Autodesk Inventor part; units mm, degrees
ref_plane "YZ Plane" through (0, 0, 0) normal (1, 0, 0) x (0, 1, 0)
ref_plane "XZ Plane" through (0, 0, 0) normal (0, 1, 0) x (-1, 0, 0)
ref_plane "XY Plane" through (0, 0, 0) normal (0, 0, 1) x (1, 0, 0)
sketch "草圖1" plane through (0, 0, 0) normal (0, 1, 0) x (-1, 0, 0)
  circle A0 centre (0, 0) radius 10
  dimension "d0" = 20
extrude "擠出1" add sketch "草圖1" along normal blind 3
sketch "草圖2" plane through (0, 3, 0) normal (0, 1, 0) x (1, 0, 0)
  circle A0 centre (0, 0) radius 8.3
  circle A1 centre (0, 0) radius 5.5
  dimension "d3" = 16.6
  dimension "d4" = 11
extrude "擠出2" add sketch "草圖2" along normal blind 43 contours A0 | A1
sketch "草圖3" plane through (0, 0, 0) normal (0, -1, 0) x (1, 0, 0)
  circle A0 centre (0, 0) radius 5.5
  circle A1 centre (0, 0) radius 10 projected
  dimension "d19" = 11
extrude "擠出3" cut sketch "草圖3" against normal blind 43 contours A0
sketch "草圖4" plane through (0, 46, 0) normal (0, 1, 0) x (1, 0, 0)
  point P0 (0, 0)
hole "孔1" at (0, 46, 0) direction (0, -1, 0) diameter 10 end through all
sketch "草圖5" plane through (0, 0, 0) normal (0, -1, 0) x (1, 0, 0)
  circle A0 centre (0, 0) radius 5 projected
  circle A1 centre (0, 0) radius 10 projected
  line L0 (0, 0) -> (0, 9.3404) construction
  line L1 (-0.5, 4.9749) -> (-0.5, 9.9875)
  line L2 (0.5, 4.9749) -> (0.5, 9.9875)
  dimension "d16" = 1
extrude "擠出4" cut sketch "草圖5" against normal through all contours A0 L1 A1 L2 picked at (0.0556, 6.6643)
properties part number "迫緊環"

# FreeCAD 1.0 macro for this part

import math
import FreeCAD as App
import Part
import Sketcher
from FreeCAD import Vector
Q = App.Units.Quantity

doc = App.newDocument("Part")
body = doc.addObject("PartDesign::Body", "Body")

# Sketch on XZ plane
sketch1 = body.newObject("Sketcher::SketchObject", "Sketch")
sketch1.AttachmentSupport = (doc.getObject("XZ_Plane"), [""])
sketch1.MapMode = "FlatFace"
sketch1.addGeometry(Part.Circle(Vector(0, 0, 0), Vector(0, 0, 1), 10), False)
sketch1.addConstraint(Sketcher.Constraint("Coincident", 0, 3, -1, 1))
sketch1.addConstraint(Sketcher.Constraint("Diameter", 0, Q("20 mm")))
pad1 = body.newObject("PartDesign::Pad", "Pad")
pad1.Profile = sketch1
pad1.Length = 3
pad1.Reversed = True

# Sketch on XZ plane
sketch2 = body.newObject("Sketcher::SketchObject", "Sketch001")
sketch2.AttachmentSupport = (doc.getObject("XZ_Plane"), [""])
sketch2.MapMode = "FlatFace"
sketch2.AttachmentOffset = App.Placement(Vector(0, 0, -3), App.Rotation())
sketch2.addGeometry(Part.Circle(Vector(0, 0, 0), Vector(0, 0, 1), 8.3), False)
sketch2.addConstraint(Sketcher.Constraint("Coincident", 0, 3, -1, 1))
sketch2.addConstraint(Sketcher.Constraint("Diameter", 0, Q("16.6 mm")))
pad2 = body.newObject("PartDesign::Pad", "Pad001")
pad2.Profile = sketch2
pad2.Length = 43
pad2.Reversed = True

# Sketch on XZ plane
sketch3 = body.newObject("Sketcher::SketchObject", "Sketch002")
sketch3.AttachmentSupport = (doc.getObject("XZ_Plane"), [""])
sketch3.MapMode = "FlatFace"
sketch3.addGeometry(Part.Circle(Vector(0, 0, 0), Vector(0, 0, 1), 5.5), False)
sketch3.addConstraint(Sketcher.Constraint("Coincident", 0, 3, -1, 1))
sketch3.addConstraint(Sketcher.Constraint("Diameter", 0, Q("11 mm")))
pocket1 = body.newObject("PartDesign::Pocket", "Pocket")
pocket1.Profile = sketch3
pocket1.Length = 43

# Sketch on XZ plane
sketch4 = body.newObject("Sketcher::SketchObject", "Sketch003")
sketch4.AttachmentSupport = (doc.getObject("XZ_Plane"), [""])
sketch4.MapMode = "FlatFace"
sketch4.AttachmentOffset = App.Placement(Vector(0, 0, -46), App.Rotation())
sketch4.addGeometry(Part.Circle(Vector(0, 0, 0), Vector(0, 0, 1), 5), False)
sketch4.addConstraint(Sketcher.Constraint("Coincident", 0, 3, -1, 1))
sketch4.addConstraint(Sketcher.Constraint("Diameter", 0, Q("10 mm")))
doc.recompute()
hole = body.newObject("PartDesign::Hole", "Hole")
hole.Profile = sketch4
hole.ThreadType = "None"
hole.Diameter = 10
hole.DepthType = "ThroughAll"
hole.Reversed = True

# Sketch on XZ plane
sketch5 = body.newObject("Sketcher::SketchObject", "Sketch004")
sketch5.AttachmentSupport = (doc.getObject("XZ_Plane"), [""])
sketch5.MapMode = "FlatFace"
sketch5.addGeometry(Part.ArcOfCircle(Part.Circle(Vector(0, 0, 0), Vector(0, 0, 1), 5), math.radians(84.260787), math.radians(95.739213)), False)
sketch5.addGeometry(Part.LineSegment(Vector(0.5, 4.9749, 0), Vector(0.5, 9.9875, 0)), False)
sketch5.addGeometry(Part.ArcOfCircle(Part.Circle(Vector(0, 0, 0), Vector(0, 0, 1), 10), math.radians(87.134018), math.radians(92.865982)), False)
sketch5.addGeometry(Part.LineSegment(Vector(-0.5, 9.9875, 0), Vector(-0.5, 4.9749, 0)), False)
sketch5.addConstraint(Sketcher.Constraint("Coincident", 0, 1, 1, 1))
sketch5.addConstraint(Sketcher.Constraint("Coincident", 1, 2, 2, 1))
sketch5.addConstraint(Sketcher.Constraint("Coincident", 2, 2, 3, 1))
sketch5.addConstraint(Sketcher.Constraint("Coincident", 3, 2, 0, 2))
sketch5.addConstraint(Sketcher.Constraint("Vertical", 1))
sketch5.addConstraint(Sketcher.Constraint("Vertical", 3))
sketch5.addConstraint(Sketcher.Constraint("Coincident", 0, 3, -1, 1))
sketch5.addConstraint(Sketcher.Constraint("Coincident", 2, 3, -1, 1))
sketch5.addConstraint(Sketcher.Constraint("Horizontal", 1, 2, 2, 2))
sketch5.addConstraint(Sketcher.Constraint("Radius", 0, Q("5 mm")))
sketch5.addConstraint(Sketcher.Constraint("Radius", 2, Q("10 mm")))
sketch5.addConstraint(Sketcher.Constraint("DistanceX", 2, 2, 1, 2, Q("1 mm")))
pocket2 = body.newObject("PartDesign::Pocket", "Pocket001")
pocket2.Profile = sketch5
pocket2.Type = "ThroughAll"

doc.recompute()
